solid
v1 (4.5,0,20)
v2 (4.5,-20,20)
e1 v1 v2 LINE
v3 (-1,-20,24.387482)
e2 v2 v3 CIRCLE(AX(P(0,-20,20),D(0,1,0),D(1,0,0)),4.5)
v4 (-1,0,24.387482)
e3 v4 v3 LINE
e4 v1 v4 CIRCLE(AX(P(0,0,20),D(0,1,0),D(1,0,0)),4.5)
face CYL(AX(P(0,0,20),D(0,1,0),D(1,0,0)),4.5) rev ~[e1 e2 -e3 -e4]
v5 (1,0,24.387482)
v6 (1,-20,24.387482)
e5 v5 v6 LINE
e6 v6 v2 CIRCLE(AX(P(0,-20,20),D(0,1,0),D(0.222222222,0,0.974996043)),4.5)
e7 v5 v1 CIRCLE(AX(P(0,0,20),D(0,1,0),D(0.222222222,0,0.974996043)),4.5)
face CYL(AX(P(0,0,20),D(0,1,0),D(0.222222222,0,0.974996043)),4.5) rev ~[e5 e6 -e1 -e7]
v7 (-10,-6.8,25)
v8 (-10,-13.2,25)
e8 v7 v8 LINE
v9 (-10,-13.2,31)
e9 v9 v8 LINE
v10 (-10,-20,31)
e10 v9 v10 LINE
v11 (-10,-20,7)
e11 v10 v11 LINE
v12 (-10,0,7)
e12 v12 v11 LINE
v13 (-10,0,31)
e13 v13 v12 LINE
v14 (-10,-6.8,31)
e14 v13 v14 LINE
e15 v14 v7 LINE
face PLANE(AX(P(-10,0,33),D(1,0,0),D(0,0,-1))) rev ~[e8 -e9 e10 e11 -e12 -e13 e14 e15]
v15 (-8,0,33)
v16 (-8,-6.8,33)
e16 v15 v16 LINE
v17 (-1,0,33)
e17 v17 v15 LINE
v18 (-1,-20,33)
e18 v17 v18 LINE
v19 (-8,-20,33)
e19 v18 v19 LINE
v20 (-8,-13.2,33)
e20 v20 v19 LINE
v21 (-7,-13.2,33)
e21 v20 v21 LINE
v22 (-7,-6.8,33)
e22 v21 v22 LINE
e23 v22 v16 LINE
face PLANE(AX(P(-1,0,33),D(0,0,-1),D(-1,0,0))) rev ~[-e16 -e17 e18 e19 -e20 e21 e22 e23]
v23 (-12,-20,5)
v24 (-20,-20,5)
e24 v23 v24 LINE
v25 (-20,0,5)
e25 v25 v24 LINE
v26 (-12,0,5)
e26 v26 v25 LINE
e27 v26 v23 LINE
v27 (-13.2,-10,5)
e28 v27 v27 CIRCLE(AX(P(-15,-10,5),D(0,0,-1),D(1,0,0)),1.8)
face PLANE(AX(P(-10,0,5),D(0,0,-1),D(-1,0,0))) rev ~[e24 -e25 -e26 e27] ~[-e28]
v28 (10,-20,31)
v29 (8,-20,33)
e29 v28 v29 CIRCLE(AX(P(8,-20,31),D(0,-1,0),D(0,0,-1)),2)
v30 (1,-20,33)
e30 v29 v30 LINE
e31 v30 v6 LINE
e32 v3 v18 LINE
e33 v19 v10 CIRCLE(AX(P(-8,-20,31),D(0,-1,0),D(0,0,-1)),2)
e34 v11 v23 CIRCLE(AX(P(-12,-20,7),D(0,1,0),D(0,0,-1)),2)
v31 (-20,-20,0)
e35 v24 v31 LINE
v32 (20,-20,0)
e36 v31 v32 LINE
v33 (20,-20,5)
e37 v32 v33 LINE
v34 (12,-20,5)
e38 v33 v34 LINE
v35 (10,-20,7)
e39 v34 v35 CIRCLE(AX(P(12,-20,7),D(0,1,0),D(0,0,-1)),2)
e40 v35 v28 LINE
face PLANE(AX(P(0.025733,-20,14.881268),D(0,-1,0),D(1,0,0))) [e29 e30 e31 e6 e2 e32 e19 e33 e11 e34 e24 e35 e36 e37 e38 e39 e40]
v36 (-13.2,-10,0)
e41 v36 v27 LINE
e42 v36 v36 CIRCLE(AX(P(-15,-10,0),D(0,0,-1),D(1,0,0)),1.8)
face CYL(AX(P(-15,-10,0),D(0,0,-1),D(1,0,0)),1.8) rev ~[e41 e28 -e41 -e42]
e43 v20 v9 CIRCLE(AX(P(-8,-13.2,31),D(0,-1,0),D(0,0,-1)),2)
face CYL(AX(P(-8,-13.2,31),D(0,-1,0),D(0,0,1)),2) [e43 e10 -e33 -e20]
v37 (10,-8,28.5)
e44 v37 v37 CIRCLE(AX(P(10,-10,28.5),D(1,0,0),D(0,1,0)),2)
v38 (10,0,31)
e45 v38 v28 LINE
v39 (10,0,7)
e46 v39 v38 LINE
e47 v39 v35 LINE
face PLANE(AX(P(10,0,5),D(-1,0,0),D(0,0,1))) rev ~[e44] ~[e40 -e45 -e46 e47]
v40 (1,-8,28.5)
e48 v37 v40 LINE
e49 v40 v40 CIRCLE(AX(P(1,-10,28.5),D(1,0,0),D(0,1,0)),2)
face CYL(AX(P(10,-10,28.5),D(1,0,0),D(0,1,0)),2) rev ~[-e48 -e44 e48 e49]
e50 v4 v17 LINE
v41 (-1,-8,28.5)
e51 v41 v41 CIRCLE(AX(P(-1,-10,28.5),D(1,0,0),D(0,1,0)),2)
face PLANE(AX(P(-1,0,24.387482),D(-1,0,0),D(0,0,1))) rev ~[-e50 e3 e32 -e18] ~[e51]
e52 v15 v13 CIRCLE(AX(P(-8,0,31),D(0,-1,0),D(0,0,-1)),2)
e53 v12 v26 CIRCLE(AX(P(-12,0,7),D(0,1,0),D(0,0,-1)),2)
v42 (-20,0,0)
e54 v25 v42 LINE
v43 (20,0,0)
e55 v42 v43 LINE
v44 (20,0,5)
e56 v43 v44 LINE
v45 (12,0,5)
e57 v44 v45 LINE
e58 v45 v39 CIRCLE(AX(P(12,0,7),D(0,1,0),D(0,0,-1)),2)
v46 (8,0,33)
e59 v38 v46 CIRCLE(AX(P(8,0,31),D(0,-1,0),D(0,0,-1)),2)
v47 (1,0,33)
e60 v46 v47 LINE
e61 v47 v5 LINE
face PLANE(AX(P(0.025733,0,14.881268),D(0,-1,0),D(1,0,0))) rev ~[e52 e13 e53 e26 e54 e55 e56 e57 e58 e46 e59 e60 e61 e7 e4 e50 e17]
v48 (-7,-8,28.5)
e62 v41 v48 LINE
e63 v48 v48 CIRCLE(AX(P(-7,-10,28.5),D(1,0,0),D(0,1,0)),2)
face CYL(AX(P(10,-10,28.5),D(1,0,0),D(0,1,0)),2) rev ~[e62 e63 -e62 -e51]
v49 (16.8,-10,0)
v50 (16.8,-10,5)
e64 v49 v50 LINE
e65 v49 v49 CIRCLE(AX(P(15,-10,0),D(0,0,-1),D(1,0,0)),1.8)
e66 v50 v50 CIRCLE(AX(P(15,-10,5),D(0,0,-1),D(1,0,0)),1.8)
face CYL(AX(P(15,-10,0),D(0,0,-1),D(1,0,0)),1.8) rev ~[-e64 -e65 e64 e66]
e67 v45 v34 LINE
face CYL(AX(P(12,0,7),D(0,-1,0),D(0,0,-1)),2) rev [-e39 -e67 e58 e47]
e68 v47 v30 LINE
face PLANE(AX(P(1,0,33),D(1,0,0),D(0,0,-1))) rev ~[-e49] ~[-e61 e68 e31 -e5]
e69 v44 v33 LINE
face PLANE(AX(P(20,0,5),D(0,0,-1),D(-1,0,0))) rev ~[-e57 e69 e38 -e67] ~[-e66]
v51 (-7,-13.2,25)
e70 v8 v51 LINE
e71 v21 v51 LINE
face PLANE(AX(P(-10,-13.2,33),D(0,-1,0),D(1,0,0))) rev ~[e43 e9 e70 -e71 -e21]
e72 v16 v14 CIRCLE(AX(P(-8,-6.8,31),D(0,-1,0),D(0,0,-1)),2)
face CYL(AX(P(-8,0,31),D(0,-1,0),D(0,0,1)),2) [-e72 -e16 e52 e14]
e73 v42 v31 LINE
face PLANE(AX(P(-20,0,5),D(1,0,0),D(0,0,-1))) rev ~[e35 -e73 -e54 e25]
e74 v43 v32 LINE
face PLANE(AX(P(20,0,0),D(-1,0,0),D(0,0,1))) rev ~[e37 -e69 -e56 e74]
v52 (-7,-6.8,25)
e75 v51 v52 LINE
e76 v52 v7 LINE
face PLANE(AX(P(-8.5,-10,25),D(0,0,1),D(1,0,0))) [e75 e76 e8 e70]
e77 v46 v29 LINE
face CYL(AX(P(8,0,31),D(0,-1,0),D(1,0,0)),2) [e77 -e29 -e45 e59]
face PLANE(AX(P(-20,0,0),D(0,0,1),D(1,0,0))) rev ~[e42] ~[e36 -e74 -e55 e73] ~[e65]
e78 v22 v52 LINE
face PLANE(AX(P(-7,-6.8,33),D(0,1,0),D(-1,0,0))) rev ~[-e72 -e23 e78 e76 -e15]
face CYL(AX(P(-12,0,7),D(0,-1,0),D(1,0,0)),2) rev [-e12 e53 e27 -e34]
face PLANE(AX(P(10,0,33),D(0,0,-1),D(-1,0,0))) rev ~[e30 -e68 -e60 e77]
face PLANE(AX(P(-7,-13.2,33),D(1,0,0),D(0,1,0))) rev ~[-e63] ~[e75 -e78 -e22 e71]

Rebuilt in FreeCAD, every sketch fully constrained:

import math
import FreeCAD as App
import Part
import Sketcher
from FreeCAD import Vector
Q = App.Units.Quantity


def edges_at(feature, points):
    """Names of the edges that pass closest to the given points."""
    edges = feature.Shape.Edges
    near = lambda p: min(range(len(edges)), key=lambda i: edges[i].distToShape(Part.Vertex(*p))[0])
    return sorted({f"Edge{near(p) + 1}" for p in points})

doc = App.newDocument("Part")
body = doc.addObject("PartDesign::Body", "Body")

# Sketch on XZ plane
sketch1 = body.newObject("Sketcher::SketchObject", "Sketch")
sketch1.AttachmentSupport = (doc.getObject("XZ_Plane"), [""])
sketch1.MapMode = "FlatFace"
sketch1.addGeometry(Part.LineSegment(Vector(-1, 33, 0), Vector(-10, 33, 0)), False)
sketch1.addGeometry(Part.LineSegment(Vector(-10, 33, 0), Vector(-10, 5, 0)), False)
sketch1.addGeometry(Part.LineSegment(Vector(-10, 5, 0), Vector(-20, 5, 0)), False)
sketch1.addGeometry(Part.LineSegment(Vector(-20, 5, 0), Vector(-20, 0, 0)), False)
sketch1.addGeometry(Part.LineSegment(Vector(-20, 0, 0), Vector(20, 0, 0)), False)
sketch1.addGeometry(Part.LineSegment(Vector(20, 0, 0), Vector(20, 5, 0)), False)
sketch1.addGeometry(Part.LineSegment(Vector(20, 5, 0), Vector(10, 5, 0)), False)
sketch1.addGeometry(Part.LineSegment(Vector(10, 5, 0), Vector(10, 33, 0)), False)
sketch1.addGeometry(Part.LineSegment(Vector(10, 33, 0), Vector(1, 33, 0)), False)
sketch1.addGeometry(Part.LineSegment(Vector(1, 33, 0), Vector(1, 24.387482, 0)), False)
sketch1.addGeometry(Part.ArcOfCircle(Part.Circle(Vector(0, 20, 0), Vector(0, 0, 1), 4.5), math.radians(0), math.radians(77.160412)), False)
sketch1.addGeometry(Part.ArcOfCircle(Part.Circle(Vector(0, 20, 0), Vector(0, 0, 1), 4.5), math.radians(102.839588), math.radians(360)), False)
sketch1.addGeometry(Part.LineSegment(Vector(-1, 24.387482, 0), Vector(-1, 33, 0)), False)
sketch1.addConstraint(Sketcher.Constraint("Coincident", 0, 2, 1, 1))
sketch1.addConstraint(Sketcher.Constraint("Coincident", 1, 2, 2, 1))
sketch1.addConstraint(Sketcher.Constraint("Coincident", 2, 2, 3, 1))
sketch1.addConstraint(Sketcher.Constraint("Coincident", 3, 2, 4, 1))
sketch1.addConstraint(Sketcher.Constraint("Coincident", 4, 2, 5, 1))
sketch1.addConstraint(Sketcher.Constraint("Coincident", 5, 2, 6, 1))
sketch1.addConstraint(Sketcher.Constraint("Coincident", 6, 2, 7, 1))
sketch1.addConstraint(Sketcher.Constraint("Coincident", 7, 2, 8, 1))
sketch1.addConstraint(Sketcher.Constraint("Coincident", 8, 2, 9, 1))
sketch1.addConstraint(Sketcher.Constraint("Coincident", 9, 2, 10, 2))
sketch1.addConstraint(Sketcher.Constraint("Tangent", 10, 1, 11, 2))
sketch1.addConstraint(Sketcher.Constraint("Coincident", 11, 1, 12, 1))
sketch1.addConstraint(Sketcher.Constraint("Coincident", 12, 2, 0, 1))
sketch1.addConstraint(Sketcher.Constraint("Horizontal", 0))
sketch1.addConstraint(Sketcher.Constraint("Vertical", 1))
sketch1.addConstraint(Sketcher.Constraint("Horizontal", 2))
sketch1.addConstraint(Sketcher.Constraint("Vertical", 3))
sketch1.addConstraint(Sketcher.Constraint("Horizontal", 4))
sketch1.addConstraint(Sketcher.Constraint("Vertical", 5))
sketch1.addConstraint(Sketcher.Constraint("Horizontal", 6))
sketch1.addConstraint(Sketcher.Constraint("Vertical", 7))
sketch1.addConstraint(Sketcher.Constraint("Horizontal", 8))
sketch1.addConstraint(Sketcher.Constraint("Vertical", 9))
sketch1.addConstraint(Sketcher.Constraint("Vertical", 12))
sketch1.addConstraint(Sketcher.Constraint("Equal", 10, 11))
sketch1.addConstraint(Sketcher.Constraint("Symmetric", 3, 2, 4, 2, -1, 1))
sketch1.addConstraint(Sketcher.Constraint("Symmetric", 1, 2, 6, 2, -2))
sketch1.addConstraint(Sketcher.Constraint("Symmetric", 9, 2, 11, 1, -2))
sketch1.addConstraint(Sketcher.Constraint("Horizontal", 0, 2, 7, 2))
sketch1.addConstraint(Sketcher.Constraint("Horizontal", 11, 3, 10, 1))
sketch1.addConstraint(Sketcher.Constraint("Radius", 10, Q("4.5 mm")))
sketch1.addConstraint(Sketcher.Constraint("DistanceX", 0, 2, 0, 1, Q("9 mm")))
sketch1.addConstraint(Sketcher.Constraint("DistanceX", 2, 2, 2, 1, Q("10 mm")))
sketch1.addConstraint(Sketcher.Constraint("DistanceX", 4, 1, 4, 2, Q("40 mm")))
sketch1.addConstraint(Sketcher.Constraint("DistanceY", 1, 2, 1, 1, Q("28 mm")))
sketch1.addConstraint(Sketcher.Constraint("DistanceY", 3, 2, 3, 1, Q("5 mm")))
sketch1.addConstraint(Sketcher.Constraint("DistanceY", -1, 1, 10, 3, Q("20 mm")))
pad1 = body.newObject("PartDesign::Pad", "Pad")
pad1.Profile = sketch1
pad1.Length = 20

# Sketch on YZ plane
sketch2 = body.newObject("Sketcher::SketchObject", "Sketch001")
sketch2.AttachmentSupport = (doc.getObject("YZ_Plane"), [""])
sketch2.MapMode = "FlatFace"
sketch2.AttachmentOffset = App.Placement(Vector(0, 0, 10), App.Rotation())
sketch2.addGeometry(Part.Circle(Vector(-10, 28.5, 0), Vector(0, 0, 1), 2), False)
sketch2.addConstraint(Sketcher.Constraint("Diameter", 0, Q("4 mm")))
sketch2.addConstraint(Sketcher.Constraint("DistanceX", 0, 3, -1, 1, Q("10 mm")))
sketch2.addConstraint(Sketcher.Constraint("DistanceY", -1, 1, 0, 3, Q("28.5 mm")))
pocket1 = body.newObject("PartDesign::Pocket", "Pocket")
pocket1.Profile = sketch2
pocket1.Length = 25

# Sketch on XY plane
sketch3 = body.newObject("Sketcher::SketchObject", "Sketch002")
sketch3.AttachmentSupport = (doc.getObject("XY_Plane"), [""])
sketch3.MapMode = "FlatFace"
sketch3.AttachmentOffset = App.Placement(Vector(0, 0, 33), App.Rotation())
sketch3.addGeometry(Part.LineSegment(Vector(-7, -6.8, 0), Vector(-10, -6.8, 0)), False)
sketch3.addGeometry(Part.LineSegment(Vector(-10, -6.8, 0), Vector(-10, -13.2, 0)), False)
sketch3.addGeometry(Part.LineSegment(Vector(-10, -13.2, 0), Vector(-7, -13.2, 0)), False)
sketch3.addGeometry(Part.LineSegment(Vector(-7, -13.2, 0), Vector(-7, -6.8, 0)), False)
sketch3.addConstraint(Sketcher.Constraint("Coincident", 0, 2, 1, 1))
sketch3.addConstraint(Sketcher.Constraint("Coincident", 1, 2, 2, 1))
sketch3.addConstraint(Sketcher.Constraint("Coincident", 2, 2, 3, 1))
sketch3.addConstraint(Sketcher.Constraint("Coincident", 3, 2, 0, 1))
sketch3.addConstraint(Sketcher.Constraint("Horizontal", 0))
sketch3.addConstraint(Sketcher.Constraint("Vertical", 1))
sketch3.addConstraint(Sketcher.Constraint("Horizontal", 2))
sketch3.addConstraint(Sketcher.Constraint("Vertical", 3))
sketch3.addConstraint(Sketcher.Constraint("DistanceX", 0, 2, 0, 1, Q("3 mm")))
sketch3.addConstraint(Sketcher.Constraint("DistanceY", 1, 2, 1, 1, Q("6.4 mm")))
sketch3.addConstraint(Sketcher.Constraint("DistanceX", 0, 2, -1, 1, Q("10 mm")))
sketch3.addConstraint(Sketcher.Constraint("DistanceY", 0, 2, -1, 1, Q("6.8 mm")))
pocket2 = body.newObject("PartDesign::Pocket", "Pocket001")
pocket2.Profile = sketch3
pocket2.Length = 8

# Sketch on XY plane
sketch4 = body.newObject("Sketcher::SketchObject", "Sketch003")
sketch4.AttachmentSupport = (doc.getObject("XY_Plane"), [""])
sketch4.MapMode = "FlatFace"
sketch4.addGeometry(Part.Circle(Vector(-15, -10, 0), Vector(0, 0, 1), 1.8), False)
sketch4.addGeometry(Part.Circle(Vector(15, -10, 0), Vector(0, 0, 1), 1.8), False)
sketch4.addConstraint(Sketcher.Constraint("Equal", 0, 1))
sketch4.addConstraint(Sketcher.Constraint("Symmetric", 0, 3, 1, 3, -2))
sketch4.addConstraint(Sketcher.Constraint("Diameter", 0, Q("3.6 mm")))
sketch4.addConstraint(Sketcher.Constraint("DistanceX", 0, 3, -1, 1, Q("15 mm")))
sketch4.addConstraint(Sketcher.Constraint("DistanceY", 0, 3, -1, 1, Q("10 mm")))
pocket3 = body.newObject("PartDesign::Pocket", "Pocket002")
pocket3.Profile = sketch4
pocket3.Length = 25
pocket3.Reversed = True
doc.recompute()

fillet = body.newObject("PartDesign::Fillet", "Fillet")
fillet.Base = (pocket3, edges_at(pocket3, [
    (-10, -10, 5),
    (10, -10, 5),
    (-10, -16.6, 33),
    (10, -10, 33),
    (-10, -3.4, 33),
]))
fillet.Radius = 2

doc.recompute()
